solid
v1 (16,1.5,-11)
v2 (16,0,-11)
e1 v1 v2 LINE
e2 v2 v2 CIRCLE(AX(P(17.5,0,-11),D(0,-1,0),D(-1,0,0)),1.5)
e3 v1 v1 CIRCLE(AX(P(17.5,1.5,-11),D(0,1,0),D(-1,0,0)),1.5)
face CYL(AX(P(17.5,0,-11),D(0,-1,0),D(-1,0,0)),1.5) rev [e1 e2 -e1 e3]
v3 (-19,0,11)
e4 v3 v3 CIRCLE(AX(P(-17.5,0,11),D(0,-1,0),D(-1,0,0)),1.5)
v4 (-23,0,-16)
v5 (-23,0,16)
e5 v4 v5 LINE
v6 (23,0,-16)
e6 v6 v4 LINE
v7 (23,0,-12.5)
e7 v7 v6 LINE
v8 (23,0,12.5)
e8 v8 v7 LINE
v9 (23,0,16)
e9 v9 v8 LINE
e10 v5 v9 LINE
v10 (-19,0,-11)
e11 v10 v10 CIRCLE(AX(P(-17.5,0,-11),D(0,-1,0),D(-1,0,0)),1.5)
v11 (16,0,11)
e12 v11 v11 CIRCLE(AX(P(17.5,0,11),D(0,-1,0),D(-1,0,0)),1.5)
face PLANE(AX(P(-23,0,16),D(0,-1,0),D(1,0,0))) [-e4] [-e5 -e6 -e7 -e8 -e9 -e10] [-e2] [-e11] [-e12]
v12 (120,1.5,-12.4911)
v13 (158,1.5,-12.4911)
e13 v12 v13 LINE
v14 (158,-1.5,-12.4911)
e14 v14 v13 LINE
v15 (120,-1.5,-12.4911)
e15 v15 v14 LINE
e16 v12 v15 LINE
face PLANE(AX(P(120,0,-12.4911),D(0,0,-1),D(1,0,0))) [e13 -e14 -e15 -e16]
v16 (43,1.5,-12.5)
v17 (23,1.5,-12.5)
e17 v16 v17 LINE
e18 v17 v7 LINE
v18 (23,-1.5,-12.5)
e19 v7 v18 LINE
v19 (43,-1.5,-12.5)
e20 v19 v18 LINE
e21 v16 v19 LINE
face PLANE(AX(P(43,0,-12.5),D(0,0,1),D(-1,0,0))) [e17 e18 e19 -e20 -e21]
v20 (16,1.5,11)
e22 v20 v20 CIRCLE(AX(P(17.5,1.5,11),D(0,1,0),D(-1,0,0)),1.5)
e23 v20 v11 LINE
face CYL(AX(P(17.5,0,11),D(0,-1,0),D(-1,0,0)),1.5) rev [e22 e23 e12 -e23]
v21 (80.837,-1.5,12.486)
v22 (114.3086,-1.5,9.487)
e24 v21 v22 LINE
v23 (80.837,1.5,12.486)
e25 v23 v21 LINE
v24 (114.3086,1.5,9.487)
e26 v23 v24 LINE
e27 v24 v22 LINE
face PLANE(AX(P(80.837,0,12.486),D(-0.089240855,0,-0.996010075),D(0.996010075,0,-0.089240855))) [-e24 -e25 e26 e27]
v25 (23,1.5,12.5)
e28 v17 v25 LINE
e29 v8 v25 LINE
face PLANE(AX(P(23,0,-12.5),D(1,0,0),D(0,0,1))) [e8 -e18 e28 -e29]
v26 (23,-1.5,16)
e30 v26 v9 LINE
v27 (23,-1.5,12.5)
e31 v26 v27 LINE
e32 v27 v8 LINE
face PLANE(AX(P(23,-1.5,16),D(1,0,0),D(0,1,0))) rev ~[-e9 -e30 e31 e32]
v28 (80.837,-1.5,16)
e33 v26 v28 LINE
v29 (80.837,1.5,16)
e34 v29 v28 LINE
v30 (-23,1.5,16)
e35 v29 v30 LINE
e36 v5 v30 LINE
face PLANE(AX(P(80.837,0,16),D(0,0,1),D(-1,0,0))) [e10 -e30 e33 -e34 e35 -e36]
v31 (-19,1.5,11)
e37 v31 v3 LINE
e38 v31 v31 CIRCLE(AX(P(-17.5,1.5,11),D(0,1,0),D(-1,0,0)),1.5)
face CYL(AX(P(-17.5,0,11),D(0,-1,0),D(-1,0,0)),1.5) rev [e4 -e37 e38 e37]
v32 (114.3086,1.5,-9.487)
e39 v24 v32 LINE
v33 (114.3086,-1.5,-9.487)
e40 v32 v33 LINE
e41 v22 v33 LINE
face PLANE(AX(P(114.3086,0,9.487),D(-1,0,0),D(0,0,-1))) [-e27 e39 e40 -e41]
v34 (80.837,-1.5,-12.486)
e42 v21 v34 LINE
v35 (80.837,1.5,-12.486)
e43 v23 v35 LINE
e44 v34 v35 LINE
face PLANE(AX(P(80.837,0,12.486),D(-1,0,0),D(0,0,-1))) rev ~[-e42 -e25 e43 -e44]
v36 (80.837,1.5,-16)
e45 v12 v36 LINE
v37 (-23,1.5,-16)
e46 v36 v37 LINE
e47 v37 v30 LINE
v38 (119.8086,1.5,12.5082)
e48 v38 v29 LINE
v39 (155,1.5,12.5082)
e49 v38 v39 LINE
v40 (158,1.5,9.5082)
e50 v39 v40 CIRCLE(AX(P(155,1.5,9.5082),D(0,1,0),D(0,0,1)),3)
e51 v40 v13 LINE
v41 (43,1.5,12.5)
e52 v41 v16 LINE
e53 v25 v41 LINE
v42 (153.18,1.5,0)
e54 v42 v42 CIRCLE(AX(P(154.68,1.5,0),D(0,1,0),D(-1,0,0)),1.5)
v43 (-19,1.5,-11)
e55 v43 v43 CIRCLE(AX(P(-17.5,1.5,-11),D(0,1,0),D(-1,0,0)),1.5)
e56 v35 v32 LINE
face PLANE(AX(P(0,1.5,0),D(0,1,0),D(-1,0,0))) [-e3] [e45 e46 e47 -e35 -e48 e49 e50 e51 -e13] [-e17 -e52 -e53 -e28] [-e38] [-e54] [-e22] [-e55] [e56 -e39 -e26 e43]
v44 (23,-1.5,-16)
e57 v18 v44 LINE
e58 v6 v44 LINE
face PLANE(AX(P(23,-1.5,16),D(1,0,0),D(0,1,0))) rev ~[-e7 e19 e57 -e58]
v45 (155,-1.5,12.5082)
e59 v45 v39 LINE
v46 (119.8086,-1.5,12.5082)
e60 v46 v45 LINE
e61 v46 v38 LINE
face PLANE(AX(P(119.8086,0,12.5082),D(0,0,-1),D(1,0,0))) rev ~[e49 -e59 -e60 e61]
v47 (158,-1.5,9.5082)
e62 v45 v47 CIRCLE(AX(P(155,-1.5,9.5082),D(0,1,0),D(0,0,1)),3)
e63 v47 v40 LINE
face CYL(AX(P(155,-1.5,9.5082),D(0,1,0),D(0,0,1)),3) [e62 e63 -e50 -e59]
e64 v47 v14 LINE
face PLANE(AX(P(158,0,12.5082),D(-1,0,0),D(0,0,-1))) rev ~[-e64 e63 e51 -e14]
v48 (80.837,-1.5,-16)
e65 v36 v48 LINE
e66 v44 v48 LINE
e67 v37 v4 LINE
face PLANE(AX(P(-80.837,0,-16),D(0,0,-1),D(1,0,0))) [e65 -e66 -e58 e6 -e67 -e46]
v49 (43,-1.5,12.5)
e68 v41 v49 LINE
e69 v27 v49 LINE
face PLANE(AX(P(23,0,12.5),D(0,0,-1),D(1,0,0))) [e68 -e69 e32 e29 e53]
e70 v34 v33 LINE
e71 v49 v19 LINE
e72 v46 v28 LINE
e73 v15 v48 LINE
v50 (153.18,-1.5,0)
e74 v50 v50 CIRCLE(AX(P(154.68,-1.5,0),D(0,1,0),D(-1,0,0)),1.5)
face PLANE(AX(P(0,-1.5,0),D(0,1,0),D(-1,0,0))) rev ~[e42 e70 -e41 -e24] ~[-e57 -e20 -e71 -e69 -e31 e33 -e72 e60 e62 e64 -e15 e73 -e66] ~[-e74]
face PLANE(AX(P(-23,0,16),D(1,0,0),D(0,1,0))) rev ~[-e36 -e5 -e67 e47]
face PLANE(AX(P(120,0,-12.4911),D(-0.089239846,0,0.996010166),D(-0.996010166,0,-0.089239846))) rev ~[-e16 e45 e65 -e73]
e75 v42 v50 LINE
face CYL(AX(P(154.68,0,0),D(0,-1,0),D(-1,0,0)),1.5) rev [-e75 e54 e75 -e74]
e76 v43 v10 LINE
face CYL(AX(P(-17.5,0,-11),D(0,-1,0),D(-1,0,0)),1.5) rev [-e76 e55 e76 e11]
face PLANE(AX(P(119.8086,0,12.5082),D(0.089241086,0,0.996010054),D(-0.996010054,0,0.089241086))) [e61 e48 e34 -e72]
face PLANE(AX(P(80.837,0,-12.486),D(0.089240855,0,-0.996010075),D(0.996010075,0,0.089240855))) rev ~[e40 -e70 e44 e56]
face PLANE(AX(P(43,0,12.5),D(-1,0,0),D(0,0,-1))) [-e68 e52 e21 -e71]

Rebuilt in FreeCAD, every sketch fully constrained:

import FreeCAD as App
import Part
import Sketcher

V = App.Vector
Q = App.Units.Quantity


def edges_at(feature, points):
    """Names of the edges that pass closest to the given points."""
    edges = feature.Shape.Edges
    near = lambda p: min(range(len(edges)), key=lambda i: edges[i].distToShape(Part.Vertex(*p))[0])
    return sorted({f"Edge{near(p) + 1}" for p in points})

doc = App.newDocument("Part")
body = doc.addObject("PartDesign::Body", "Body")

sketch1 = body.newObject("Sketcher::SketchObject", "Sketch")
sketch1.AttachmentSupport = (doc.getObject("XZ_Plane"), [""])
sketch1.MapMode = "FlatFace"
sketch1.addGeometry([
    Part.LineSegment(V(80.837, 16, 0), V(119.8086, 12.5082, 0)),
    Part.LineSegment(V(119.8086, 12.5082, 0), V(158, 12.5082, 0)),
    Part.LineSegment(V(158, 12.5082, 0), V(158, -12.4911, 0)),
    Part.LineSegment(V(158, -12.4911, 0), V(120, -12.4911, 0)),
    Part.LineSegment(V(120, -12.4911, 0), V(80.837, -16, 0)),
    Part.LineSegment(V(80.837, -16, 0), V(-80.837, -16, 0)),
    Part.LineSegment(V(-80.837, -16, 0), V(-120, -12.4911, 0)),
    Part.LineSegment(V(-120, -12.4911, 0), V(-158, -12.4911, 0)),
    Part.LineSegment(V(-158, -12.4911, 0), V(-158, 12.5082, 0)),
    Part.LineSegment(V(-158, 12.5082, 0), V(-119.8086, 12.5082, 0)),
    Part.LineSegment(V(-119.8086, 12.5082, 0), V(-80.837, 16, 0)),
    Part.LineSegment(V(-80.837, 16, 0), V(80.837, 16, 0)),
    Part.Circle(V(17.5, -11, 0), V(0, 0, 1), 1.5),
    Part.Circle(V(-17.5, -11, 0), V(0, 0, 1), 1.5),
    Part.Circle(V(154.68, 0, 0), V(0, 0, 1), 1.5),
    Part.LineSegment(V(80.837, 12.486, 0), V(80.837, -12.486, 0)),
    Part.LineSegment(V(80.837, -12.486, 0), V(114.3086, -9.487, 0)),
    Part.LineSegment(V(114.3086, -9.487, 0), V(114.3086, 9.487, 0)),
    Part.LineSegment(V(114.3086, 9.487, 0), V(80.837, 12.486, 0)),
    Part.LineSegment(V(43, 12.5, 0), V(23, 12.5, 0)),
    Part.LineSegment(V(23, 12.5, 0), V(23, -12.5, 0)),
    Part.LineSegment(V(23, -12.5, 0), V(43, -12.5, 0)),
    Part.LineSegment(V(43, -12.5, 0), V(43, 12.5, 0)),
    Part.Circle(V(17.5, 11, 0), V(0, 0, 1), 1.5),
    Part.LineSegment(V(-23, -12.5, 0), V(-23, 12.5, 0)),
    Part.LineSegment(V(-23, 12.5, 0), V(-43, 12.5, 0)),
    Part.LineSegment(V(-43, 12.5, 0), V(-43, -12.5, 0)),
    Part.LineSegment(V(-43, -12.5, 0), V(-23, -12.5, 0)),
    Part.LineSegment(V(-114.3086, -9.487, 0), V(-80.837, -12.486, 0)),
    Part.LineSegment(V(-80.837, -12.486, 0), V(-80.837, 12.486, 0)),
    Part.LineSegment(V(-80.837, 12.486, 0), V(-114.3086, 9.487, 0)),
    Part.LineSegment(V(-114.3086, 9.487, 0), V(-114.3086, -9.487, 0)),
    Part.Circle(V(-154.68, 0, 0), V(0, 0, 1), 1.5),
    Part.Circle(V(-17.5, 11, 0), V(0, 0, 1), 1.5),
], False)
sketch1.addConstraint([
    Sketcher.Constraint("Coincident", 0, 2, 1, 1),
    Sketcher.Constraint("Coincident", 1, 2, 2, 1),
    Sketcher.Constraint("Coincident", 2, 2, 3, 1),
    Sketcher.Constraint("Coincident", 3, 2, 4, 1),
    Sketcher.Constraint("Coincident", 4, 2, 5, 1),
    Sketcher.Constraint("Coincident", 5, 2, 6, 1),
    Sketcher.Constraint("Coincident", 6, 2, 7, 1),
    Sketcher.Constraint("Coincident", 7, 2, 8, 1),
    Sketcher.Constraint("Coincident", 8, 2, 9, 1),
    Sketcher.Constraint("Coincident", 9, 2, 10, 1),
    Sketcher.Constraint("Coincident", 10, 2, 11, 1),
    Sketcher.Constraint("Coincident", 11, 2, 0, 1),
    Sketcher.Constraint("Coincident", 15, 2, 16, 1),
    Sketcher.Constraint("Coincident", 16, 2, 17, 1),
    Sketcher.Constraint("Coincident", 17, 2, 18, 1),
    Sketcher.Constraint("Coincident", 18, 2, 15, 1),
    Sketcher.Constraint("Coincident", 19, 2, 20, 1),
    Sketcher.Constraint("Coincident", 20, 2, 21, 1),
    Sketcher.Constraint("Coincident", 21, 2, 22, 1),
    Sketcher.Constraint("Coincident", 22, 2, 19, 1),
    Sketcher.Constraint("Coincident", 24, 2, 25, 1),
    Sketcher.Constraint("Coincident", 25, 2, 26, 1),
    Sketcher.Constraint("Coincident", 26, 2, 27, 1),
    Sketcher.Constraint("Coincident", 27, 2, 24, 1),
    Sketcher.Constraint("Coincident", 28, 2, 29, 1),
    Sketcher.Constraint("Coincident", 29, 2, 30, 1),
    Sketcher.Constraint("Coincident", 30, 2, 31, 1),
    Sketcher.Constraint("Coincident", 31, 2, 28, 1),
    Sketcher.Constraint("Horizontal", 1),
    Sketcher.Constraint("Vertical", 2),
    Sketcher.Constraint("Horizontal", 3),
    Sketcher.Constraint("Horizontal", 5),
    Sketcher.Constraint("Horizontal", 7),
    Sketcher.Constraint("Vertical", 8),
    Sketcher.Constraint("Horizontal", 9),
    Sketcher.Constraint("Horizontal", 11),
    Sketcher.Constraint("Vertical", 15),
    Sketcher.Constraint("Vertical", 17),
    Sketcher.Constraint("Horizontal", 19),
    Sketcher.Constraint("Vertical", 20),
    Sketcher.Constraint("Horizontal", 21),
    Sketcher.Constraint("Vertical", 22),
    Sketcher.Constraint("Vertical", 24),
    Sketcher.Constraint("Horizontal", 25),
    Sketcher.Constraint("Vertical", 26),
    Sketcher.Constraint("Horizontal", 27),
    Sketcher.Constraint("Vertical", 29),
    Sketcher.Constraint("Vertical", 31),
    Sketcher.Constraint("Equal", 12, 13),
    Sketcher.Constraint("Equal", 13, 14),
    Sketcher.Constraint("Equal", 14, 23),
    Sketcher.Constraint("Equal", 23, 32),
    Sketcher.Constraint("Equal", 32, 33),
    Sketcher.Constraint("Symmetric", 13, 3, 23, 3, -1, 1),
    Sketcher.Constraint("Symmetric", 14, 3, 32, 3, -1, 1),
    Sketcher.Constraint("Symmetric", 12, 3, 33, 3, -1, 1),
    Sketcher.Constraint("Symmetric", 4, 2, 10, 2, -1, 1),
    Sketcher.Constraint("Symmetric", 20, 2, 24, 2, -1, 1),
    Sketcher.Constraint("Symmetric", 22, 2, 26, 2, -1, 1),
    Sketcher.Constraint("Symmetric", 18, 2, 28, 2, -1, 1),
    Sketcher.Constraint("Symmetric", 16, 2, 30, 2, -1, 1),
    Sketcher.Constraint("Symmetric", 12, 3, 13, 3, -2),
    Sketcher.Constraint("Symmetric", 3, 2, 6, 2, -2),
    Sketcher.Constraint("Symmetric", 1, 2, 8, 2, -2),
    Sketcher.Constraint("PointOnObject", 14, 3, -1),
    Sketcher.Constraint("Parallel", 0, 6),
    Sketcher.Constraint("Parallel", 4, 10),
    Sketcher.Constraint("Parallel", 10, 16),
    Sketcher.Constraint("Parallel", 6, 18),
    Sketcher.Constraint("Parallel", 18, 28),
    Sketcher.Constraint("Parallel", 16, 30),
    Sketcher.Constraint("Horizontal", 22, 2, 24, 2),
    Sketcher.Constraint("Horizontal", 15, 2, 28, 2),
    Sketcher.Constraint("Horizontal", 17, 2, 30, 2),
    Sketcher.Constraint("Vertical", 4, 2, 11, 2),
    Sketcher.Constraint("Vertical", 11, 2, 15, 2),
    Sketcher.Constraint("Diameter", 12, Q("3 mm")),
    Sketcher.Constraint("DistanceX", 3, 2, 3, 1, Q("38 mm")),
    Sketcher.Constraint("DistanceX", 19, 2, 19, 1, Q("20 mm")),
    Sketcher.Constraint("DistanceY", 20, 2, 20, 1, Q("25 mm")),
    Sketcher.Constraint("DistanceX", -1, 1, 19, 2, Q("23 mm")),
    Sketcher.Constraint("DistanceY", 4, 2, 12, 3, Q("5 mm")),
    Sketcher.Constraint("DistanceY", 5, 2, 10, 2, Q("32 mm")),
    Sketcher.Constraint("DistanceX", 16, 2, 0, 2, Q("5.5 mm")),
    Sketcher.Constraint("DistanceX", 23, 3, 19, 2, Q("5.5 mm")),
    Sketcher.Constraint("DistanceX", 14, 3, 1, 2, Q("3.32 mm")),
    Sketcher.Constraint("DistanceX", -1, 1, 4, 2, Q("80.837 mm")),
    Sketcher.Constraint("DistanceX", -1, 1, 1, 2, Q("158 mm")),
    Sketcher.Constraint("DistanceY", 4, 2, 3, 2, Q("3.509 mm")),
    Sketcher.Constraint("DistanceY", 15, 2, 15, 1, Q("24.972 mm")),
    Sketcher.Constraint("DistanceY", 17, 1, 17, 2, Q("18.974 mm")),
])
pad1 = body.newObject("PartDesign::Pad", "Pad")
pad1.Profile = sketch1
pad1.Length = 3
pad1.Midplane = True
doc.recompute()

fillet = body.newObject("PartDesign::Fillet", "Fillet")
fillet.Base = (pad1, edges_at(pad1, [(-158, 0, 12.508), (158, 0, 12.508)]))
fillet.Radius = 3

sketch2 = body.newObject("Sketcher::SketchObject", "Sketch001")
sketch2.AttachmentSupport = (doc.getObject("XY_Plane"), [""])
sketch2.MapMode = "FlatFace"
sketch2.AttachmentOffset = App.Placement(V(0, 0, 16), App.Rotation())
sketch2.addGeometry([
    Part.LineSegment(V(-23, 1.5, 0), V(-158, 1.5, 0)),
    Part.LineSegment(V(-158, 1.5, 0), V(-158, -1.5, 0)),
    Part.LineSegment(V(-158, -1.5, 0), V(23, -1.5, 0)),
    Part.LineSegment(V(23, -1.5, 0), V(23, 0, 0)),
    Part.LineSegment(V(23, 0, 0), V(-23, 0, 0)),
    Part.LineSegment(V(-23, 0, 0), V(-23, 1.5, 0)),
], False)
sketch2.addConstraint([
    Sketcher.Constraint("Coincident", 0, 2, 1, 1),
    Sketcher.Constraint("Coincident", 1, 2, 2, 1),
    Sketcher.Constraint("Coincident", 2, 2, 3, 1),
    Sketcher.Constraint("Coincident", 3, 2, 4, 1),
    Sketcher.Constraint("Coincident", 4, 2, 5, 1),
    Sketcher.Constraint("Coincident", 5, 2, 0, 1),
    Sketcher.Constraint("Horizontal", 0),
    Sketcher.Constraint("Vertical", 1),
    Sketcher.Constraint("Horizontal", 2),
    Sketcher.Constraint("Vertical", 3),
    Sketcher.Constraint("Horizontal", 4),
    Sketcher.Constraint("Vertical", 5),
    Sketcher.Constraint("Symmetric", 3, 2, 4, 2, -1, 1),
    Sketcher.Constraint("Equal", 3, 5),
    Sketcher.Constraint("DistanceX", 0, 2, 0, 1, Q("135 mm")),
    Sketcher.Constraint("DistanceX", 2, 1, 2, 2, Q("181 mm")),
    Sketcher.Constraint("DistanceY", 1, 2, 1, 1, Q("3 mm")),
])
pocket1 = body.newObject("PartDesign::Pocket", "Pocket")
pocket1.Profile = sketch2
pocket1.Type = "ThroughAll"

doc.recompute()
